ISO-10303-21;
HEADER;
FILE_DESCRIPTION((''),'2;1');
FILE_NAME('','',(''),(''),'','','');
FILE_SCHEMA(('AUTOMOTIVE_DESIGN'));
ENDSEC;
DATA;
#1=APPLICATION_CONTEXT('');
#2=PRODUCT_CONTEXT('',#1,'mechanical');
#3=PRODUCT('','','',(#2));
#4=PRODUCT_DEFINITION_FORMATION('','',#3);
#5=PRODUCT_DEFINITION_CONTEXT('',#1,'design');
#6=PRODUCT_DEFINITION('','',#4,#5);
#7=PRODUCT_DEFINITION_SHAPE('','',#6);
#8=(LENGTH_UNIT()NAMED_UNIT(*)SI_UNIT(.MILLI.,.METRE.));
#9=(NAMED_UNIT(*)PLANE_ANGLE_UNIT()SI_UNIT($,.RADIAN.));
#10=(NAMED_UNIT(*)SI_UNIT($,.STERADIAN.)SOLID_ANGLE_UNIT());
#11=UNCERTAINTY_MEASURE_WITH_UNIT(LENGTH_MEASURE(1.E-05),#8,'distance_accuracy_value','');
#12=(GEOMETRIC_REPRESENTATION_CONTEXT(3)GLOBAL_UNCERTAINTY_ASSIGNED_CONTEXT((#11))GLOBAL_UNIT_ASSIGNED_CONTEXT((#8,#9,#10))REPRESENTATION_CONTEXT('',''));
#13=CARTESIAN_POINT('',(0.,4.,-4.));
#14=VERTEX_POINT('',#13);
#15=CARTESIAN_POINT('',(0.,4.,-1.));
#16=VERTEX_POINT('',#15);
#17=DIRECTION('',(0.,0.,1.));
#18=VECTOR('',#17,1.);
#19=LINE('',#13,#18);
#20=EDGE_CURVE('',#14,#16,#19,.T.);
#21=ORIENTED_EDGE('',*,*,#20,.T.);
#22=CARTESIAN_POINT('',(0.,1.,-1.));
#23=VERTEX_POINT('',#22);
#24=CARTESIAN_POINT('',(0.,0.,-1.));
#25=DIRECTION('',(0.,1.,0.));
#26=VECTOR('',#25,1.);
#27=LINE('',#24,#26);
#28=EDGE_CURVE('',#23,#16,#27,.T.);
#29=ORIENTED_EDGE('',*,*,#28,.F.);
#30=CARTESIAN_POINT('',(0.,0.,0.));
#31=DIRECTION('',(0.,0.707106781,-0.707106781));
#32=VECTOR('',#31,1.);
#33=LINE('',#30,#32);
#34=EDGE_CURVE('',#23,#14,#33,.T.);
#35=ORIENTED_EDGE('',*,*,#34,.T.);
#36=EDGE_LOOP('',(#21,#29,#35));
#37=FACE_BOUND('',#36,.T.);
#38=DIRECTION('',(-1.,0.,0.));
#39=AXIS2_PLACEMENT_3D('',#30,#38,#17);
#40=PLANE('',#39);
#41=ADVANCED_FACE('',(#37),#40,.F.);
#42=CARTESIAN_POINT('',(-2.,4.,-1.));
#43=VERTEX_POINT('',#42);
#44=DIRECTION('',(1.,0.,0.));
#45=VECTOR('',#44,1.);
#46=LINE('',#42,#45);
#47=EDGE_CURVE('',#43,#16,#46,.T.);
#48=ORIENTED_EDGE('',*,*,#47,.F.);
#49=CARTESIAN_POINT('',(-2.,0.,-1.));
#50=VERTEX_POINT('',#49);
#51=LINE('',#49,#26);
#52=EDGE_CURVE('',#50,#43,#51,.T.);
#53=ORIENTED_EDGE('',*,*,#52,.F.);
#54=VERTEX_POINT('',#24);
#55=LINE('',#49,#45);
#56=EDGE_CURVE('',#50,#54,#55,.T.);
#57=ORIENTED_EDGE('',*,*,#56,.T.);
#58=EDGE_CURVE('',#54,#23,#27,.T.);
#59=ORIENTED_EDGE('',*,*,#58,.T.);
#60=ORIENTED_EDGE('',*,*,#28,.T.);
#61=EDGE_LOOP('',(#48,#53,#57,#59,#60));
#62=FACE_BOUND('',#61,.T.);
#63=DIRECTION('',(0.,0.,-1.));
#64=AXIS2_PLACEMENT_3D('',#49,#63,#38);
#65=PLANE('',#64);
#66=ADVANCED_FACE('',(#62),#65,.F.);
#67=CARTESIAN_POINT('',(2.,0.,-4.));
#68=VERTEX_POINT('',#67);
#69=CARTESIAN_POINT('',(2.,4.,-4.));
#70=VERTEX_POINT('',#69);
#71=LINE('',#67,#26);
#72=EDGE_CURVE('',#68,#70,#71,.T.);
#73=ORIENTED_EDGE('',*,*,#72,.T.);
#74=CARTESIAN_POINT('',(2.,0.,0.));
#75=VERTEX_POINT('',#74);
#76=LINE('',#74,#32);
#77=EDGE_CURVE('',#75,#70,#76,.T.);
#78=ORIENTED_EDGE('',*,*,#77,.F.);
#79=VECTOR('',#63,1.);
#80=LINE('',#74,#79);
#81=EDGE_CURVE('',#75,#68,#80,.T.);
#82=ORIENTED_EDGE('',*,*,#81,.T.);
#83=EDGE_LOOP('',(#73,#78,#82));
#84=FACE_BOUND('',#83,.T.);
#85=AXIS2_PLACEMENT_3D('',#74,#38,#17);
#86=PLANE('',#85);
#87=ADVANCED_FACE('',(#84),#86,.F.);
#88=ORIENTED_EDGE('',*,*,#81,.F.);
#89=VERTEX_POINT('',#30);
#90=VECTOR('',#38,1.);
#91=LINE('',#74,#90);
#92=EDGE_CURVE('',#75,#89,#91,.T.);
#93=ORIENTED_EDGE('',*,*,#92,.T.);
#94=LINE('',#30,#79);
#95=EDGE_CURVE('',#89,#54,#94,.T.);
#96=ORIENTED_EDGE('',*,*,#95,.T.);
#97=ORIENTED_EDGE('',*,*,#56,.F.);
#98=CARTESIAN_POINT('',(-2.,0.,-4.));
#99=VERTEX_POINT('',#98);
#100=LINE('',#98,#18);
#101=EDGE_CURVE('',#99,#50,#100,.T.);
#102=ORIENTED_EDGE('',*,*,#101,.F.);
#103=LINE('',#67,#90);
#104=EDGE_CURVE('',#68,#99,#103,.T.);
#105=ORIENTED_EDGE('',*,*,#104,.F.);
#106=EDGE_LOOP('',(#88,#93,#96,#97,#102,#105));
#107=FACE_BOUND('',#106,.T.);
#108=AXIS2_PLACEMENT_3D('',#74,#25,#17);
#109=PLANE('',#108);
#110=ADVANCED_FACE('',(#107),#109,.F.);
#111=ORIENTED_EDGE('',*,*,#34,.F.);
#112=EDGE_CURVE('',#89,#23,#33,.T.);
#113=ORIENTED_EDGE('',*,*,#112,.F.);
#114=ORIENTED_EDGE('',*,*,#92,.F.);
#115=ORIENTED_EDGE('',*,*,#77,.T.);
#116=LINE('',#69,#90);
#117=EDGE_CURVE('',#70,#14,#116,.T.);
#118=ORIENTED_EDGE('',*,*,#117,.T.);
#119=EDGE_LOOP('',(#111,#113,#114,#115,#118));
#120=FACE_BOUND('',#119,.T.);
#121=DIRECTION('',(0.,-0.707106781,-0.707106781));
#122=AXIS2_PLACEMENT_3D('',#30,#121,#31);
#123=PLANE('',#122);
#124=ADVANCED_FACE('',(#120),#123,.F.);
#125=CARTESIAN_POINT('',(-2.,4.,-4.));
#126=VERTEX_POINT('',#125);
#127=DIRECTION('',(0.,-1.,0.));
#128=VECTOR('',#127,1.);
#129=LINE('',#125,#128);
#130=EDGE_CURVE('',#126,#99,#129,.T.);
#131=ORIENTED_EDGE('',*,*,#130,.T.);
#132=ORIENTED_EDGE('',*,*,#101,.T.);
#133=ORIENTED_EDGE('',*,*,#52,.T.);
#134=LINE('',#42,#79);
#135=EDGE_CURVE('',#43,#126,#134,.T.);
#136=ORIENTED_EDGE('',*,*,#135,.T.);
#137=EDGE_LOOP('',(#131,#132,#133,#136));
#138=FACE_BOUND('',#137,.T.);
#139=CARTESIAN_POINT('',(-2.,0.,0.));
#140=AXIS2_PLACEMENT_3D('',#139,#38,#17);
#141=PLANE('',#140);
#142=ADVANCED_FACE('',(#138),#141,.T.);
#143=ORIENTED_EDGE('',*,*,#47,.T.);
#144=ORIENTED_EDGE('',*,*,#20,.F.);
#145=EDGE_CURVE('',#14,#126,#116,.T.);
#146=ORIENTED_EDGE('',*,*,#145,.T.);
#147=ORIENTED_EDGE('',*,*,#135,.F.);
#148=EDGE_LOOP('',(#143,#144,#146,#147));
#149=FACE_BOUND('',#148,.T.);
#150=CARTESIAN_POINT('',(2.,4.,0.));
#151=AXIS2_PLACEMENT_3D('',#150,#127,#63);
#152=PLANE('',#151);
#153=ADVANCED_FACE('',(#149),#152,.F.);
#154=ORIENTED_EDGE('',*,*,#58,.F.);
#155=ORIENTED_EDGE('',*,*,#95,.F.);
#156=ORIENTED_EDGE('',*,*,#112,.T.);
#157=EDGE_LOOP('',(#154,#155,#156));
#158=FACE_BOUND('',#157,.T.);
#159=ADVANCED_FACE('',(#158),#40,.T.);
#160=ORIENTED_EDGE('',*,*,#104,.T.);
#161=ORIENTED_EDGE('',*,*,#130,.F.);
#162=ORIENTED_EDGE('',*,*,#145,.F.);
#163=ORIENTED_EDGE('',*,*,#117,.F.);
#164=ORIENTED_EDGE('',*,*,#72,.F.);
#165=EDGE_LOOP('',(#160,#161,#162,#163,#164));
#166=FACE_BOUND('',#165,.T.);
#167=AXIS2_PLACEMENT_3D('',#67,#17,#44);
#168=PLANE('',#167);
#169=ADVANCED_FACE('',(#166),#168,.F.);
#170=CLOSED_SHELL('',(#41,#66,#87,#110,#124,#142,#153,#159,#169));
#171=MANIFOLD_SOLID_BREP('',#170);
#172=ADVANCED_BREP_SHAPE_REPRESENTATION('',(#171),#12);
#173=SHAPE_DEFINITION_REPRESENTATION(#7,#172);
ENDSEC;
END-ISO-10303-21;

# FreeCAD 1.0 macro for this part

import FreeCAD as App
import Part
import Sketcher
Q = App.Units.Quantity

doc = App.newDocument("Part")
params = doc.addObject("Spreadsheet::Sheet", "Params")
for row, (alias, value) in enumerate([
    ("sketch1_width", "4 mm"),
    ("pad1_length", "2 mm"),
    ("sketch2_width", "4 mm"),
    ("sketch2_height", "3 mm"),
    ("pad2_length", "2 mm"),
    ("sketch3_width", "4 mm"),
    ("pocket1_length", "2 mm"),
], start=1):
    params.set(f"A{row}", alias)
    params.set(f"B{row}", "=" + value)
    params.setAlias(f"B{row}", alias)

body = doc.addObject("PartDesign::Body", "Body")

# Sketch on YZ plane
sketch1 = body.newObject("Sketcher::SketchObject", "Sketch")
sketch1.AttachmentSupport = (doc.getObject("YZ_Plane"), [""])
sketch1.MapMode = "FlatFace"
sketch1.addGeometry([
    Part.LineSegment(App.Vector(4, 0, 0), App.Vector(0, 0, 0)),
    Part.LineSegment(App.Vector(0, 0, 0), App.Vector(0, -4, 0)),
    Part.LineSegment(App.Vector(0, -4, 0), App.Vector(4, -4, 0)),
    Part.LineSegment(App.Vector(4, -4, 0), App.Vector(4, 0, 0)),
], False)
sketch1.addConstraint([
    Sketcher.Constraint("Coincident", 0, 2, 1, 1),
    Sketcher.Constraint("Coincident", 1, 2, 2, 1),
    Sketcher.Constraint("Coincident", 2, 2, 3, 1),
    Sketcher.Constraint("Coincident", 3, 2, 0, 1),
    Sketcher.Constraint("Horizontal", 0),
    Sketcher.Constraint("Vertical", 1),
    Sketcher.Constraint("Horizontal", 2),
    Sketcher.Constraint("Vertical", 3),
    Sketcher.Constraint("Coincident", 0, 2, -1, 1),
    Sketcher.Constraint("Equal", 2, 1),
    Sketcher.Constraint("DistanceX", 0, 2, 0, 1, Q("4 mm")),
])
sketch1.setExpression("Constraints[10]", "Params.sketch1_width")
pad1 = body.newObject("PartDesign::Pad", "Pad")
pad1.Profile = sketch1
pad1.setExpression("Length", "Params.pad1_length")

# Sketch on YZ plane
sketch2 = body.newObject("Sketcher::SketchObject", "Sketch001")
sketch2.AttachmentSupport = (doc.getObject("YZ_Plane"), [""])
sketch2.MapMode = "FlatFace"
sketch2.addGeometry([
    Part.LineSegment(App.Vector(4, -4, 0), App.Vector(0, -4, 0)),
    Part.LineSegment(App.Vector(0, -4, 0), App.Vector(0, -1, 0)),
    Part.LineSegment(App.Vector(0, -1, 0), App.Vector(4, -1, 0)),
    Part.LineSegment(App.Vector(4, -1, 0), App.Vector(4, -4, 0)),
], False)
sketch2.addConstraint([
    Sketcher.Constraint("Coincident", 0, 2, 1, 1),
    Sketcher.Constraint("Coincident", 1, 2, 2, 1),
    Sketcher.Constraint("Coincident", 2, 2, 3, 1),
    Sketcher.Constraint("Coincident", 3, 2, 0, 1),
    Sketcher.Constraint("Horizontal", 0),
    Sketcher.Constraint("Vertical", 1),
    Sketcher.Constraint("Horizontal", 2),
    Sketcher.Constraint("Vertical", 3),
    Sketcher.Constraint("PointOnObject", 0, 2, -2),
    Sketcher.Constraint("DistanceX", 0, 2, 0, 1, Q("4 mm")),
    Sketcher.Constraint("DistanceY", 1, 1, 1, 2, Q("3 mm")),
    Sketcher.Constraint("DistanceY", 0, 2, -1, 1, Q("4 mm")),
])
sketch2.setExpression("Constraints[9]", "Params.sketch2_width")
sketch2.setExpression("Constraints[10]", "Params.sketch2_height")
pad2 = body.newObject("PartDesign::Pad", "Pad001")
pad2.Profile = sketch2
pad2.setExpression("Length", "Params.pad2_length")
pad2.Reversed = True

# Sketch on YZ plane
sketch3 = body.newObject("Sketcher::SketchObject", "Sketch002")
sketch3.AttachmentSupport = (doc.getObject("YZ_Plane"), [""])
sketch3.MapMode = "FlatFace"
sketch3.AttachmentOffset = App.Placement(App.Vector(0, 0, 2), App.Rotation())
sketch3.addGeometry([
    Part.LineSegment(App.Vector(0, 0, 0), App.Vector(4, -4, 0)),
    Part.LineSegment(App.Vector(4, -4, 0), App.Vector(4, 0, 0)),
    Part.LineSegment(App.Vector(4, 0, 0), App.Vector(0, 0, 0)),
], False)
sketch3.addConstraint([
    Sketcher.Constraint("Coincident", 0, 2, 1, 1),
    Sketcher.Constraint("Coincident", 1, 2, 2, 1),
    Sketcher.Constraint("Coincident", 2, 2, 0, 1),
    Sketcher.Constraint("Vertical", 1),
    Sketcher.Constraint("Horizontal", 2),
    Sketcher.Constraint("Coincident", 2, 2, -1, 1),
    Sketcher.Constraint("Equal", 2, 1),
    Sketcher.Constraint("DistanceX", 2, 2, 2, 1, Q("4 mm")),
])
sketch3.setExpression("Constraints[7]", "Params.sketch3_width")
pocket1 = body.newObject("PartDesign::Pocket", "Pocket")
pocket1.Profile = sketch3
pocket1.setExpression("Length", "Params.pocket1_length")

doc.recompute()
